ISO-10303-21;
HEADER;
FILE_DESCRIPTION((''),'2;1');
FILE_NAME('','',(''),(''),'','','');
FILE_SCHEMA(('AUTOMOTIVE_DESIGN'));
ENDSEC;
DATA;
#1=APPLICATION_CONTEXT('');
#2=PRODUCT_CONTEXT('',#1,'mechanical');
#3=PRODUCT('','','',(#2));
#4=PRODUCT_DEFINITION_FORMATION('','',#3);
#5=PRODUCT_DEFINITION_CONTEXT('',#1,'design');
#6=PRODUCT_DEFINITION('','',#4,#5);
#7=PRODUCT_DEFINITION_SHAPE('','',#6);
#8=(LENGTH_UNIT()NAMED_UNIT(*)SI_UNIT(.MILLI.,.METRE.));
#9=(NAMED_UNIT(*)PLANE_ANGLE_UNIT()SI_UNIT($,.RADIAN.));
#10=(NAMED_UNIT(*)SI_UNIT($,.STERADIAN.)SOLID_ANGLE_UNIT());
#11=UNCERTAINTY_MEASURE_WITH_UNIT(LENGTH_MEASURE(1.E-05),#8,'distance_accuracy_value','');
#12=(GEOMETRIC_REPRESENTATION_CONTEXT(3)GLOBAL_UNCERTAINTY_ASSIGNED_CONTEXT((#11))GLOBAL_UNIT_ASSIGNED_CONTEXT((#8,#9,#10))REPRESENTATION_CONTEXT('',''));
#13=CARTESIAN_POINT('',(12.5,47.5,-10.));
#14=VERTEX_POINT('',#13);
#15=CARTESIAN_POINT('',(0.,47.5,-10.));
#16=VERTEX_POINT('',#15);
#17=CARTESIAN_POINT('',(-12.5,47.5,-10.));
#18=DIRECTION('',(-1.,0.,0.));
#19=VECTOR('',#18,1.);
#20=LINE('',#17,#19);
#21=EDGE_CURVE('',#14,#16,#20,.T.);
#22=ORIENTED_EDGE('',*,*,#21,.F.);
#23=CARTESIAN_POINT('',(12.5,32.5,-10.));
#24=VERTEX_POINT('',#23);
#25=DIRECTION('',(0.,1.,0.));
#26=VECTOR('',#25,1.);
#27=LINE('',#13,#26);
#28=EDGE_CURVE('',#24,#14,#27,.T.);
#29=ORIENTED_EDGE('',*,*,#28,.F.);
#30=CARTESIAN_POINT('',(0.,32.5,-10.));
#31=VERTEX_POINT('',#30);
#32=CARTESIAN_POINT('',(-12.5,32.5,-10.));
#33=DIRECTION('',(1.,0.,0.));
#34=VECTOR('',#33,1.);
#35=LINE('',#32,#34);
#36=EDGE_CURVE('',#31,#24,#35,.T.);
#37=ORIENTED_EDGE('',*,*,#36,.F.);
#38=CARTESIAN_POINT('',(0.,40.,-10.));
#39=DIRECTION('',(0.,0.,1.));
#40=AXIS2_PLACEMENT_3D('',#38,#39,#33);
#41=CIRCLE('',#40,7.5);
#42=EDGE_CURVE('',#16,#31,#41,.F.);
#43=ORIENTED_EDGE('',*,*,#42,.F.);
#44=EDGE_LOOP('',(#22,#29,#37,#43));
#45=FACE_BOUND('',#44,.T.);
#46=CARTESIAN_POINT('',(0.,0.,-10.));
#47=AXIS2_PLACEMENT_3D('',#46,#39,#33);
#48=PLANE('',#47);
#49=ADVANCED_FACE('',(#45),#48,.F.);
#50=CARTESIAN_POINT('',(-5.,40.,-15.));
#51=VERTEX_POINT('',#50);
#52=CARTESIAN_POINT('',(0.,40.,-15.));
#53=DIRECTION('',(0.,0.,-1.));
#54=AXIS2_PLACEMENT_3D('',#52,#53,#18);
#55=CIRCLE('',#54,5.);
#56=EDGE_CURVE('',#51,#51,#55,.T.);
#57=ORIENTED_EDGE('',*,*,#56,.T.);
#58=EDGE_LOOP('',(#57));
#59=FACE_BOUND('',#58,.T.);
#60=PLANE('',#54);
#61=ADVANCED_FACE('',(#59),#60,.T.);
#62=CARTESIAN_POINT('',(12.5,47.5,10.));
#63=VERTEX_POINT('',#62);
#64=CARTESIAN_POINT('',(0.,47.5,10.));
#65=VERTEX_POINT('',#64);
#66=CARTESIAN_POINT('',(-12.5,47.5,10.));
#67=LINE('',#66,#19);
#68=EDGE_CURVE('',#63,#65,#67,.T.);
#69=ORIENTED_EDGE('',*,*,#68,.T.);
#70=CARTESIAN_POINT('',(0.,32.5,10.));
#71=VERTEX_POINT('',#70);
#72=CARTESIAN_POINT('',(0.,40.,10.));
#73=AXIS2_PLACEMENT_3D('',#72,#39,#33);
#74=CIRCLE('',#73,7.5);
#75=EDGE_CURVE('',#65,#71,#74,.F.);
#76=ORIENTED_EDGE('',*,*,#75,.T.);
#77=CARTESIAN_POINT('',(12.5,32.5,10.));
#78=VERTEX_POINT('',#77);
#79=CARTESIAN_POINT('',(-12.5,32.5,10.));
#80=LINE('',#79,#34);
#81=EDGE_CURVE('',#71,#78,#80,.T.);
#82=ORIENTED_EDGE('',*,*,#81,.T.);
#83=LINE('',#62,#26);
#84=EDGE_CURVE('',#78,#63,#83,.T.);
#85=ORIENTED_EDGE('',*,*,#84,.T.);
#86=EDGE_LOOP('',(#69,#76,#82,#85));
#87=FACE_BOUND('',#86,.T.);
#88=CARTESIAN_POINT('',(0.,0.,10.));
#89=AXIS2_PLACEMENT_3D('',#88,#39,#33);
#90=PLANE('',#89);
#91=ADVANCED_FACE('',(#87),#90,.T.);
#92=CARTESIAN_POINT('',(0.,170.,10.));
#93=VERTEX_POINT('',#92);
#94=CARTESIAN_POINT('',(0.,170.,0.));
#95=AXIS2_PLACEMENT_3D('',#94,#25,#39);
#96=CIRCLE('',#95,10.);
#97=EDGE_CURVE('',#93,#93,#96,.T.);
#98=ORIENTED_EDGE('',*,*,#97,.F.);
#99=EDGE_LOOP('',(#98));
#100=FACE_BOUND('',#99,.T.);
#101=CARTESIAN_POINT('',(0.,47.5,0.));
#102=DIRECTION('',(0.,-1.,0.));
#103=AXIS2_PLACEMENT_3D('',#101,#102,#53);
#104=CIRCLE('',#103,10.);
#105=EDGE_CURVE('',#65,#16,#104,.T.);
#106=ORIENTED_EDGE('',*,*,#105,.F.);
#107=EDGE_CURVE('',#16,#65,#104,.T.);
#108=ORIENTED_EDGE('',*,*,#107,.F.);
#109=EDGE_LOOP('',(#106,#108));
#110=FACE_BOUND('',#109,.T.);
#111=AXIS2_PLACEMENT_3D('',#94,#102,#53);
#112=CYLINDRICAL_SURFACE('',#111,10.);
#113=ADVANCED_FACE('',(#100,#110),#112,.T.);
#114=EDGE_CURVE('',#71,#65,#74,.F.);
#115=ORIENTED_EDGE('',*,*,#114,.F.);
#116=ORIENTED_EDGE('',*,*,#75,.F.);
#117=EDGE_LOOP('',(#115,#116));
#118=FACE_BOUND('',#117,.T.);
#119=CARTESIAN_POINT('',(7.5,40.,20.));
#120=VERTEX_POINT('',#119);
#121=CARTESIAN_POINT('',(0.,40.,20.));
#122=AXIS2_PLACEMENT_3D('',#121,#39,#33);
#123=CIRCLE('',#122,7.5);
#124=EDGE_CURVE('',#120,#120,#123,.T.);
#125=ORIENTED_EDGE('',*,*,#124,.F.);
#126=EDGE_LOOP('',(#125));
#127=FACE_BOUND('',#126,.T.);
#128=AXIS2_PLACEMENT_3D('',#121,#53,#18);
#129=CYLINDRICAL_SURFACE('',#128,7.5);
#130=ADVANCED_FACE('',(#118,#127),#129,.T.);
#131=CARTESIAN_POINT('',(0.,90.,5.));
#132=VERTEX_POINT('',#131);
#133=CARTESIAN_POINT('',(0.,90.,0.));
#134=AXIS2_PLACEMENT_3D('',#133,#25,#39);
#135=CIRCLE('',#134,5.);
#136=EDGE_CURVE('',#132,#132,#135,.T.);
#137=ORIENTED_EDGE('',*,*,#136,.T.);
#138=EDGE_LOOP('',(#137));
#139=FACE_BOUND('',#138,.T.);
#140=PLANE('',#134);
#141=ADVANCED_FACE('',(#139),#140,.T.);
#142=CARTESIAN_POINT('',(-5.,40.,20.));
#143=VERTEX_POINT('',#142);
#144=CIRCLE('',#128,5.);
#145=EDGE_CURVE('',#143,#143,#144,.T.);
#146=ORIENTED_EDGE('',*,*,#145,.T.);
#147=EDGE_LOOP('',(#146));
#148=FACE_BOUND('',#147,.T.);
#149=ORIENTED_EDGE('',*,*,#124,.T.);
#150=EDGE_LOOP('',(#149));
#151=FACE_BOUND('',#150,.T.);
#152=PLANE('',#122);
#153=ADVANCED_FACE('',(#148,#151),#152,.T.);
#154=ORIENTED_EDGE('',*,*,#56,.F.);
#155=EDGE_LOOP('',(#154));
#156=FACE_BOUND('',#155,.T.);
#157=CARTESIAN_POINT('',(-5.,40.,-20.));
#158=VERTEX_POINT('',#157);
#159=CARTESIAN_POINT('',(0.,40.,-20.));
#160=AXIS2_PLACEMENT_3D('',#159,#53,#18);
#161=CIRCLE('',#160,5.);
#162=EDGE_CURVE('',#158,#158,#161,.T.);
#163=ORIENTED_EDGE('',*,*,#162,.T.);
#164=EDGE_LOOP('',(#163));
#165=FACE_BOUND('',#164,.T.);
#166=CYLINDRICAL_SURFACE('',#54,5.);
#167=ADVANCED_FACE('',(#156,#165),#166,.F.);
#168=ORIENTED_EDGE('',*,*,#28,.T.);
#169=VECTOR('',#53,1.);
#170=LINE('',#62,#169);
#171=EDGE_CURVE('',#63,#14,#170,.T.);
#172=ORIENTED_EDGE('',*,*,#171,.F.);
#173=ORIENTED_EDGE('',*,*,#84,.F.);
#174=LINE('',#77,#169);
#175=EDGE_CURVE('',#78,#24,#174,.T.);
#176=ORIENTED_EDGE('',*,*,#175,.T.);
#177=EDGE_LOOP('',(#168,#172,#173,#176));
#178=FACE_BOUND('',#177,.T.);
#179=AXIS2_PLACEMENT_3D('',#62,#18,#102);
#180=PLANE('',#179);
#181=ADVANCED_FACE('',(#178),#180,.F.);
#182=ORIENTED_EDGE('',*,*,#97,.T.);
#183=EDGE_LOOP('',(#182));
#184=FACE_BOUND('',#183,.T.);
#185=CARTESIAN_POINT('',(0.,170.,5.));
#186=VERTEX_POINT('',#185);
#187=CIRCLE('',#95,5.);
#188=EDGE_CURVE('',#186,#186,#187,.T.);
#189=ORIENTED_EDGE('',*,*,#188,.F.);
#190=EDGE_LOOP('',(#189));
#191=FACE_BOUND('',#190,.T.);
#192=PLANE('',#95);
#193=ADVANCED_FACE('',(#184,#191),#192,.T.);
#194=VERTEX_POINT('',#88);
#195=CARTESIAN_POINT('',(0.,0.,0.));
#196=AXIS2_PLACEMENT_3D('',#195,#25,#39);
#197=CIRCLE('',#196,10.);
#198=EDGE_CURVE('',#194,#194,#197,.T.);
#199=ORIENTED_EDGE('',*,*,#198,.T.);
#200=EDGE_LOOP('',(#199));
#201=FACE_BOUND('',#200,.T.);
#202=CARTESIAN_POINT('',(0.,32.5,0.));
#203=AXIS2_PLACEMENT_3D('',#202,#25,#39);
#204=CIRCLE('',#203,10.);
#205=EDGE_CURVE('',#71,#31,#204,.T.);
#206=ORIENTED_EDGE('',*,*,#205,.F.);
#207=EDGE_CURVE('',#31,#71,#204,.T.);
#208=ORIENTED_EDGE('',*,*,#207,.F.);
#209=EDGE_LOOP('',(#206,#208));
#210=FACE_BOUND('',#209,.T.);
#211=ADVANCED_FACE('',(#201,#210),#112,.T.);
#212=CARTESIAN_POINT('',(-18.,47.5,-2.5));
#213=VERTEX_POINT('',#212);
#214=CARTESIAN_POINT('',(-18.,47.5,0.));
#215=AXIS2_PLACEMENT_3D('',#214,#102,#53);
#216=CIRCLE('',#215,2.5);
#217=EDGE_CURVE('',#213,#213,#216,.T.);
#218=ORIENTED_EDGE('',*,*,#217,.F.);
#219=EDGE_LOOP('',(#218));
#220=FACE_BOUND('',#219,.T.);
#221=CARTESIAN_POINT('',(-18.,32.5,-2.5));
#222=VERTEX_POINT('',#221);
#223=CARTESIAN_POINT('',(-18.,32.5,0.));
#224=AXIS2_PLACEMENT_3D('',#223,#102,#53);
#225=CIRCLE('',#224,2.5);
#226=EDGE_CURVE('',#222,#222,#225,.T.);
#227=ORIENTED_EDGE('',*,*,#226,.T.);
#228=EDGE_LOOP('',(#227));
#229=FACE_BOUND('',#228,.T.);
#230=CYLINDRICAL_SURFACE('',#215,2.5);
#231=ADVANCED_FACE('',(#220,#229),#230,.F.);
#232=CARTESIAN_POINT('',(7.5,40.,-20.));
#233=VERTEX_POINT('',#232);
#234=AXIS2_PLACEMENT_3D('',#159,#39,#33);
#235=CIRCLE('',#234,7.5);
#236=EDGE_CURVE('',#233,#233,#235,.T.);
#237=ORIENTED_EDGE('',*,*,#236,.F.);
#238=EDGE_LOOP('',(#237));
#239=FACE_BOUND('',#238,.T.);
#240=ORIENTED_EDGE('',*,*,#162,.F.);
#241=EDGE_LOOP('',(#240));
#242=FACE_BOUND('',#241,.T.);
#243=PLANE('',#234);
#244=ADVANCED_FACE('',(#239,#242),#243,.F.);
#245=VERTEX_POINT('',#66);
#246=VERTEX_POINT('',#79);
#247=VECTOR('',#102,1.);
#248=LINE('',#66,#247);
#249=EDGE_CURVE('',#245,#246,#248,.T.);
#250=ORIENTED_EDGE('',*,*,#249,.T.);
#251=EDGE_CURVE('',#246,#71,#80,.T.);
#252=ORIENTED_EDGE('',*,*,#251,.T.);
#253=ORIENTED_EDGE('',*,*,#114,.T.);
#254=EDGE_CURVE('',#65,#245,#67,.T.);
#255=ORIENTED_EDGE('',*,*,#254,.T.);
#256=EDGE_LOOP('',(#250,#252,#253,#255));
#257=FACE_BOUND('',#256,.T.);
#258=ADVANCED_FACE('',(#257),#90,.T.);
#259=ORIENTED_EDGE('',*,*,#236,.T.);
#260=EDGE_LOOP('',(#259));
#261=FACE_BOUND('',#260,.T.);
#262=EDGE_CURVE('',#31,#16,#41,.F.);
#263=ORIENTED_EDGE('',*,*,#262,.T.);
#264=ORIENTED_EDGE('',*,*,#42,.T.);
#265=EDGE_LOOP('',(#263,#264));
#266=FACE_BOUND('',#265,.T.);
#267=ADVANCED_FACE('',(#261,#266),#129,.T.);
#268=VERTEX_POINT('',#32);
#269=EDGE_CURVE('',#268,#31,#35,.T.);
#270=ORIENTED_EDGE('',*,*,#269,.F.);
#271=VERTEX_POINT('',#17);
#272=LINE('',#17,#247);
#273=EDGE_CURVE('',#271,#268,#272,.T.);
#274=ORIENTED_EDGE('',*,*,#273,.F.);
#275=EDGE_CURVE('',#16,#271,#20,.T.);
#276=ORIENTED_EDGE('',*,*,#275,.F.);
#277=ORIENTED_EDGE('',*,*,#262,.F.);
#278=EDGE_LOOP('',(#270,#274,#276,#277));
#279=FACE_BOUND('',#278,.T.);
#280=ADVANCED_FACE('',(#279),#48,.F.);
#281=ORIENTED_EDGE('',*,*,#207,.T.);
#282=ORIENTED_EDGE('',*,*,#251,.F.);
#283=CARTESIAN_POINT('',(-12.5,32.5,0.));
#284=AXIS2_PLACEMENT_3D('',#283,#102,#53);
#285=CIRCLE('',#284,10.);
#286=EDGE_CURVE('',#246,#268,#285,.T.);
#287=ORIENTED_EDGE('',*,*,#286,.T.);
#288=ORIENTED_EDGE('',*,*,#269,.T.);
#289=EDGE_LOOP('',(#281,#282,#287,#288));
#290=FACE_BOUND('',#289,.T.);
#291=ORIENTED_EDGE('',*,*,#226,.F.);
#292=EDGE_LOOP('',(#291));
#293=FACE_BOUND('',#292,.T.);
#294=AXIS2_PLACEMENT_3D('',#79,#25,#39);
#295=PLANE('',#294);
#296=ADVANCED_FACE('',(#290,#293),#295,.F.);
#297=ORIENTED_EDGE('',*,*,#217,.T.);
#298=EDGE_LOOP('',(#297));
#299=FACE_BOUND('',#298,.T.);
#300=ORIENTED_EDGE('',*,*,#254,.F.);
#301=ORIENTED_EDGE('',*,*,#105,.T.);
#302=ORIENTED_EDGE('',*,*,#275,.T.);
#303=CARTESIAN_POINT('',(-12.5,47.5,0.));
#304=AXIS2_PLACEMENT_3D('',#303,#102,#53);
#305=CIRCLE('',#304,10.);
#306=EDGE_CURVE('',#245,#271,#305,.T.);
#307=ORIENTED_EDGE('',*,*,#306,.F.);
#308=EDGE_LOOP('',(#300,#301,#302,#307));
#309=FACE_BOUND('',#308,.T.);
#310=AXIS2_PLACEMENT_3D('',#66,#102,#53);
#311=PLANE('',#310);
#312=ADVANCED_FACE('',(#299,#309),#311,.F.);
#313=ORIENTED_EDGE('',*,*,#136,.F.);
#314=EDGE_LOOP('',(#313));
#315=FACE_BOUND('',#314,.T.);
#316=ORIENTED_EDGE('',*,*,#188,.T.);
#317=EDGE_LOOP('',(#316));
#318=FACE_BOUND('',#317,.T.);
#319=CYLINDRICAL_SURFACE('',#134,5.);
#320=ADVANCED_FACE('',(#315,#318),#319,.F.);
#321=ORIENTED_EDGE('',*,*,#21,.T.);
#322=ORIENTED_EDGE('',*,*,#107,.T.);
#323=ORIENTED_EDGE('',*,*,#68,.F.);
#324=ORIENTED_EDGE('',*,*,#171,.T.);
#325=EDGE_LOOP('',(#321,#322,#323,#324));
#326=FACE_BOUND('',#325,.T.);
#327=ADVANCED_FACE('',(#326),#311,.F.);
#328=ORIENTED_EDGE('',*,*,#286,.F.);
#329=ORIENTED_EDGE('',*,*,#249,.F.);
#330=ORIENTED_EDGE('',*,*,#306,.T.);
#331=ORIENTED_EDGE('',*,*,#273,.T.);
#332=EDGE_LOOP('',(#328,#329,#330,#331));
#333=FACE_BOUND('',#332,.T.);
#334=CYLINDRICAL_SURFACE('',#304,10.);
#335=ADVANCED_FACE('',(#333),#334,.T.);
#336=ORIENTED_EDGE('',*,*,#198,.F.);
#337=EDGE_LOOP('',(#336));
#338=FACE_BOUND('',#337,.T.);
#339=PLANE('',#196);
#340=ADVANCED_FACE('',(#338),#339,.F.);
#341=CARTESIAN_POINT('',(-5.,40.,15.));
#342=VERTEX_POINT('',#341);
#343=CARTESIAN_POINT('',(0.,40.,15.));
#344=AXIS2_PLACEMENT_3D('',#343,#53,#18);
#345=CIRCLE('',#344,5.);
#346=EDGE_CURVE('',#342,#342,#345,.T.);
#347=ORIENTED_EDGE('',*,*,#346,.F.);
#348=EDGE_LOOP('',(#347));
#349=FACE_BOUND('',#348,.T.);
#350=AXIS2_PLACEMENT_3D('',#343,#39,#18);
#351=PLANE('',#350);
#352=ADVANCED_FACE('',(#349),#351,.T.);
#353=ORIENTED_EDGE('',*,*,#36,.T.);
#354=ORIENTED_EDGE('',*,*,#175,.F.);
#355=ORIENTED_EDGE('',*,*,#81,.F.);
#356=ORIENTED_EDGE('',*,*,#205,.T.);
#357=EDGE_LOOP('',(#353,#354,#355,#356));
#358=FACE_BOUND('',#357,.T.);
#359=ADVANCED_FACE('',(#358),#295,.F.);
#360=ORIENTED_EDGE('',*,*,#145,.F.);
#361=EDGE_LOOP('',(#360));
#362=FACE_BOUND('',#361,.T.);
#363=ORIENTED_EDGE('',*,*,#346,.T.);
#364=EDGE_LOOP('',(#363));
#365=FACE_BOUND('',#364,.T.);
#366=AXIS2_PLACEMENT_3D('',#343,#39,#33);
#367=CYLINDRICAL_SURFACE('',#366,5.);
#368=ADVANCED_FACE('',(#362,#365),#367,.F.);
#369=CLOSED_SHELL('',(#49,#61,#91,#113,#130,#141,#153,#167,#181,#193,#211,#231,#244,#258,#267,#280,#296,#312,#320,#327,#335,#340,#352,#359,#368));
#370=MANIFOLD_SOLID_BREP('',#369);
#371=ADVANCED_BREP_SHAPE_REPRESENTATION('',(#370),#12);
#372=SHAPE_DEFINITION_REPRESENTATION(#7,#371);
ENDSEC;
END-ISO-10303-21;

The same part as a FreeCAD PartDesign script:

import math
import FreeCAD as App
import Part
import Sketcher
from FreeCAD import Vector

doc = App.newDocument("Part")
body = doc.addObject("PartDesign::Body", "Body")

# Sketch on XZ plane
sketch1 = body.newObject("Sketcher::SketchObject", "Sketch")
sketch1.AttachmentSupport = (doc.getObject("XZ_Plane"), [""])
sketch1.MapMode = "FlatFace"
sketch1.addGeometry(Part.Circle(Vector(0, 0, 0), Vector(0, 0, 1), 10), False)
sketch1.addConstraint([
    Sketcher.Constraint("Coincident", 0, 3, -1, 1),
    Sketcher.Constraint("Diameter", 0, 20.0),
])
pad1 = body.newObject("PartDesign::Pad", "Pad")
pad1.Profile = sketch1
pad1.Length = 170
pad1.Reversed = True

# Sketch on XY plane
sketch2 = body.newObject("Sketcher::SketchObject", "Sketch001")
sketch2.AttachmentSupport = (doc.getObject("XY_Plane"), [""])
sketch2.MapMode = "FlatFace"
sketch2.addGeometry([
    Part.LineSegment(Vector(-12.5, 47.5, 0), Vector(-12.5, 32.5, 0)),
    Part.LineSegment(Vector(-12.5, 32.5, 0), Vector(12.5, 32.5, 0)),
    Part.LineSegment(Vector(12.5, 32.5, 0), Vector(12.5, 47.5, 0)),
    Part.LineSegment(Vector(12.5, 47.5, 0), Vector(-12.5, 47.5, 0)),
], False)
sketch2.addConstraint([
    Sketcher.Constraint("Coincident", 0, 2, 1, 1),
    Sketcher.Constraint("Coincident", 1, 2, 2, 1),
    Sketcher.Constraint("Coincident", 2, 2, 3, 1),
    Sketcher.Constraint("Coincident", 3, 2, 0, 1),
    Sketcher.Constraint("Vertical", 0),
    Sketcher.Constraint("Horizontal", 1),
    Sketcher.Constraint("Vertical", 2),
    Sketcher.Constraint("Horizontal", 3),
    Sketcher.Constraint("DistanceX", 1, 1, 1, 2, 25.0),
    Sketcher.Constraint("DistanceY", 0, 2, 0, 1, 15.0),
    Sketcher.Constraint("DistanceX", 0, 2, -1, 1, 12.5),
    Sketcher.Constraint("DistanceY", -1, 1, 0, 2, 32.5),
])
pad2 = body.newObject("PartDesign::Pad", "Pad001")
pad2.Profile = sketch2
pad2.Length = 20
pad2.Midplane = True

# Sketch on XY plane
sketch3 = body.newObject("Sketcher::SketchObject", "Sketch002")
sketch3.AttachmentSupport = (doc.getObject("XY_Plane"), [""])
sketch3.MapMode = "FlatFace"
sketch3.addGeometry(Part.Circle(Vector(0, 40, 0), Vector(0, 0, 1), 7.5), False)
sketch3.addConstraint([
    Sketcher.Constraint("PointOnObject", 0, 3, -2),
    Sketcher.Constraint("Diameter", 0, 15.0),
    Sketcher.Constraint("DistanceY", -1, 1, 0, 3, 40.0),
])
pad3 = body.newObject("PartDesign::Pad", "Pad002")
pad3.Profile = sketch3
pad3.Length = 40
pad3.Midplane = True

# Sketch on XZ plane
sketch4 = body.newObject("Sketcher::SketchObject", "Sketch003")
sketch4.AttachmentSupport = (doc.getObject("XZ_Plane"), [""])
sketch4.MapMode = "FlatFace"
sketch4.AttachmentOffset = App.Placement(Vector(0, 0, -170), App.Rotation())
sketch4.addGeometry(Part.Circle(Vector(0, 0, 0), Vector(0, 0, 1), 5), False)
sketch4.addConstraint([
    Sketcher.Constraint("Coincident", 0, 3, -1, 1),
    Sketcher.Constraint("Diameter", 0, 10.0),
])
pocket1 = body.newObject("PartDesign::Pocket", "Pocket")
pocket1.Profile = sketch4
pocket1.Length = 80
pocket1.Reversed = True

# Sketch on XY plane
sketch5 = body.newObject("Sketcher::SketchObject", "Sketch004")
sketch5.AttachmentSupport = (doc.getObject("XY_Plane"), [""])
sketch5.MapMode = "FlatFace"
sketch5.AttachmentOffset = App.Placement(Vector(0, 0, -20), App.Rotation())
sketch5.addGeometry(Part.Circle(Vector(0, 40, 0), Vector(0, 0, 1), 5), False)
sketch5.addConstraint([
    Sketcher.Constraint("PointOnObject", 0, 3, -2),
    Sketcher.Constraint("Diameter", 0, 10.0),
    Sketcher.Constraint("DistanceY", -1, 1, 0, 3, 40.0),
])
pocket2 = body.newObject("PartDesign::Pocket", "Pocket001")
pocket2.Profile = sketch5
pocket2.Length = 5
pocket2.Reversed = True
doc.recompute()

mirrored = body.newObject("PartDesign::Mirrored", "Mirrored")
mirrored.Originals = [pocket2]
mirrored.MirrorPlane = (doc.getObject("XY_Plane"), [""])
body.Tip = mirrored

# Sketch on XZ plane
sketch6 = body.newObject("Sketcher::SketchObject", "Sketch005")
sketch6.AttachmentSupport = (doc.getObject("XZ_Plane"), [""])
sketch6.MapMode = "FlatFace"
sketch6.AttachmentOffset = App.Placement(Vector(0, 0, -32.5), App.Rotation())
sketch6.addGeometry([
    Part.LineSegment(Vector(-12.5, -10, 0), Vector(-12.5, 10, 0)),
    Part.ArcOfCircle(Part.Circle(Vector(-12.5, 0, 0), Vector(0, 0, 1), 10), math.radians(90), math.radians(270)),
], False)
sketch6.addConstraint([
    Sketcher.Constraint("Coincident", 0, 1, 1, 2),
    Sketcher.Constraint("Coincident", 1, 1, 0, 2),
    Sketcher.Constraint("Vertical", 0),
    Sketcher.Constraint("PointOnObject", 1, 3, -1),
    Sketcher.Constraint("Vertical", 1, 3, 0, 1),
    Sketcher.Constraint("Radius", 1, 10.0),
    Sketcher.Constraint("DistanceX", 1, 3, -1, 1, 12.5),
])
pad4 = body.newObject("PartDesign::Pad", "Pad003")
pad4.Profile = sketch6
pad4.Length = 15
pad4.Reversed = True

# Sketch on XZ plane
sketch7 = body.newObject("Sketcher::SketchObject", "Sketch006")
sketch7.AttachmentSupport = (doc.getObject("XZ_Plane"), [""])
sketch7.MapMode = "FlatFace"
sketch7.AttachmentOffset = App.Placement(Vector(0, 0, -32.5), App.Rotation())
sketch7.addGeometry(Part.Circle(Vector(-18, 0, 0), Vector(0, 0, 1), 2.5), False)
sketch7.addConstraint([
    Sketcher.Constraint("PointOnObject", 0, 3, -1),
    Sketcher.Constraint("Diameter", 0, 5.0),
    Sketcher.Constraint("DistanceX", 0, 3, -1, 1, 18.0),
])
pocket3 = body.newObject("PartDesign::Pocket", "Pocket002")
pocket3.Profile = sketch7
pocket3.Length = 15

doc.recompute()
